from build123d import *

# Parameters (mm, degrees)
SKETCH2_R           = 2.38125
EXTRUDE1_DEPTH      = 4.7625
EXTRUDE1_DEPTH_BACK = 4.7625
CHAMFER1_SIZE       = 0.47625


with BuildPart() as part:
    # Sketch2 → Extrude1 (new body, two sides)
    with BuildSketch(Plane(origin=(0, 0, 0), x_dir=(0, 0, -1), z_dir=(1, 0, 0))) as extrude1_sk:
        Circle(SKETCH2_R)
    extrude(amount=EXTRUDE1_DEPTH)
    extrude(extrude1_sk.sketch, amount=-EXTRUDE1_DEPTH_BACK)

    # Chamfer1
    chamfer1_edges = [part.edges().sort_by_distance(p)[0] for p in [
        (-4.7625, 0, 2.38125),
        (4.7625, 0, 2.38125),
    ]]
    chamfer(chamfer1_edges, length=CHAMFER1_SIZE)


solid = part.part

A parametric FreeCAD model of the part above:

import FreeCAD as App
import Part
import Sketcher
Q = App.Units.Quantity


def edges_at(feature, points):
    """Names of the edges that pass closest to the given points."""
    edges = feature.Shape.Edges
    near = lambda p: min(range(len(edges)), key=lambda i: edges[i].distToShape(Part.Vertex(*p))[0])
    return sorted({f"Edge{near(p) + 1}" for p in points})

doc = App.newDocument("Part")
body = doc.addObject("PartDesign::Body", "Body")

sketch1 = body.newObject("Sketcher::SketchObject", "Sketch")
sketch1.AttachmentSupport = (doc.getObject("YZ_Plane"), [""])
sketch1.MapMode = "FlatFace"
sketch1.addGeometry(Part.Circle(App.Vector(0, 0, 0), App.Vector(0, 0, 1), 2.38125), False)
sketch1.addConstraint(Sketcher.Constraint("Coincident", 0, 3, -1, 1))
sketch1.addConstraint(Sketcher.Constraint("Diameter", 0, Q("0.1875 in")))
pad1 = body.newObject("PartDesign::Pad", "Pad")
pad1.Profile = sketch1
pad1.Type = "TwoLengths"
pad1.Length = Q("0.1875 in")
pad1.Length2 = Q("0.1875 in")
doc.recompute()

chamfer = body.newObject("PartDesign::Chamfer", "Chamfer")
chamfer.Base = (pad1, edges_at(pad1, [(-4.763, 0, 2.381), (4.763, 0, 2.381)]))
chamfer.Size = 0.47625

doc.recompute()
